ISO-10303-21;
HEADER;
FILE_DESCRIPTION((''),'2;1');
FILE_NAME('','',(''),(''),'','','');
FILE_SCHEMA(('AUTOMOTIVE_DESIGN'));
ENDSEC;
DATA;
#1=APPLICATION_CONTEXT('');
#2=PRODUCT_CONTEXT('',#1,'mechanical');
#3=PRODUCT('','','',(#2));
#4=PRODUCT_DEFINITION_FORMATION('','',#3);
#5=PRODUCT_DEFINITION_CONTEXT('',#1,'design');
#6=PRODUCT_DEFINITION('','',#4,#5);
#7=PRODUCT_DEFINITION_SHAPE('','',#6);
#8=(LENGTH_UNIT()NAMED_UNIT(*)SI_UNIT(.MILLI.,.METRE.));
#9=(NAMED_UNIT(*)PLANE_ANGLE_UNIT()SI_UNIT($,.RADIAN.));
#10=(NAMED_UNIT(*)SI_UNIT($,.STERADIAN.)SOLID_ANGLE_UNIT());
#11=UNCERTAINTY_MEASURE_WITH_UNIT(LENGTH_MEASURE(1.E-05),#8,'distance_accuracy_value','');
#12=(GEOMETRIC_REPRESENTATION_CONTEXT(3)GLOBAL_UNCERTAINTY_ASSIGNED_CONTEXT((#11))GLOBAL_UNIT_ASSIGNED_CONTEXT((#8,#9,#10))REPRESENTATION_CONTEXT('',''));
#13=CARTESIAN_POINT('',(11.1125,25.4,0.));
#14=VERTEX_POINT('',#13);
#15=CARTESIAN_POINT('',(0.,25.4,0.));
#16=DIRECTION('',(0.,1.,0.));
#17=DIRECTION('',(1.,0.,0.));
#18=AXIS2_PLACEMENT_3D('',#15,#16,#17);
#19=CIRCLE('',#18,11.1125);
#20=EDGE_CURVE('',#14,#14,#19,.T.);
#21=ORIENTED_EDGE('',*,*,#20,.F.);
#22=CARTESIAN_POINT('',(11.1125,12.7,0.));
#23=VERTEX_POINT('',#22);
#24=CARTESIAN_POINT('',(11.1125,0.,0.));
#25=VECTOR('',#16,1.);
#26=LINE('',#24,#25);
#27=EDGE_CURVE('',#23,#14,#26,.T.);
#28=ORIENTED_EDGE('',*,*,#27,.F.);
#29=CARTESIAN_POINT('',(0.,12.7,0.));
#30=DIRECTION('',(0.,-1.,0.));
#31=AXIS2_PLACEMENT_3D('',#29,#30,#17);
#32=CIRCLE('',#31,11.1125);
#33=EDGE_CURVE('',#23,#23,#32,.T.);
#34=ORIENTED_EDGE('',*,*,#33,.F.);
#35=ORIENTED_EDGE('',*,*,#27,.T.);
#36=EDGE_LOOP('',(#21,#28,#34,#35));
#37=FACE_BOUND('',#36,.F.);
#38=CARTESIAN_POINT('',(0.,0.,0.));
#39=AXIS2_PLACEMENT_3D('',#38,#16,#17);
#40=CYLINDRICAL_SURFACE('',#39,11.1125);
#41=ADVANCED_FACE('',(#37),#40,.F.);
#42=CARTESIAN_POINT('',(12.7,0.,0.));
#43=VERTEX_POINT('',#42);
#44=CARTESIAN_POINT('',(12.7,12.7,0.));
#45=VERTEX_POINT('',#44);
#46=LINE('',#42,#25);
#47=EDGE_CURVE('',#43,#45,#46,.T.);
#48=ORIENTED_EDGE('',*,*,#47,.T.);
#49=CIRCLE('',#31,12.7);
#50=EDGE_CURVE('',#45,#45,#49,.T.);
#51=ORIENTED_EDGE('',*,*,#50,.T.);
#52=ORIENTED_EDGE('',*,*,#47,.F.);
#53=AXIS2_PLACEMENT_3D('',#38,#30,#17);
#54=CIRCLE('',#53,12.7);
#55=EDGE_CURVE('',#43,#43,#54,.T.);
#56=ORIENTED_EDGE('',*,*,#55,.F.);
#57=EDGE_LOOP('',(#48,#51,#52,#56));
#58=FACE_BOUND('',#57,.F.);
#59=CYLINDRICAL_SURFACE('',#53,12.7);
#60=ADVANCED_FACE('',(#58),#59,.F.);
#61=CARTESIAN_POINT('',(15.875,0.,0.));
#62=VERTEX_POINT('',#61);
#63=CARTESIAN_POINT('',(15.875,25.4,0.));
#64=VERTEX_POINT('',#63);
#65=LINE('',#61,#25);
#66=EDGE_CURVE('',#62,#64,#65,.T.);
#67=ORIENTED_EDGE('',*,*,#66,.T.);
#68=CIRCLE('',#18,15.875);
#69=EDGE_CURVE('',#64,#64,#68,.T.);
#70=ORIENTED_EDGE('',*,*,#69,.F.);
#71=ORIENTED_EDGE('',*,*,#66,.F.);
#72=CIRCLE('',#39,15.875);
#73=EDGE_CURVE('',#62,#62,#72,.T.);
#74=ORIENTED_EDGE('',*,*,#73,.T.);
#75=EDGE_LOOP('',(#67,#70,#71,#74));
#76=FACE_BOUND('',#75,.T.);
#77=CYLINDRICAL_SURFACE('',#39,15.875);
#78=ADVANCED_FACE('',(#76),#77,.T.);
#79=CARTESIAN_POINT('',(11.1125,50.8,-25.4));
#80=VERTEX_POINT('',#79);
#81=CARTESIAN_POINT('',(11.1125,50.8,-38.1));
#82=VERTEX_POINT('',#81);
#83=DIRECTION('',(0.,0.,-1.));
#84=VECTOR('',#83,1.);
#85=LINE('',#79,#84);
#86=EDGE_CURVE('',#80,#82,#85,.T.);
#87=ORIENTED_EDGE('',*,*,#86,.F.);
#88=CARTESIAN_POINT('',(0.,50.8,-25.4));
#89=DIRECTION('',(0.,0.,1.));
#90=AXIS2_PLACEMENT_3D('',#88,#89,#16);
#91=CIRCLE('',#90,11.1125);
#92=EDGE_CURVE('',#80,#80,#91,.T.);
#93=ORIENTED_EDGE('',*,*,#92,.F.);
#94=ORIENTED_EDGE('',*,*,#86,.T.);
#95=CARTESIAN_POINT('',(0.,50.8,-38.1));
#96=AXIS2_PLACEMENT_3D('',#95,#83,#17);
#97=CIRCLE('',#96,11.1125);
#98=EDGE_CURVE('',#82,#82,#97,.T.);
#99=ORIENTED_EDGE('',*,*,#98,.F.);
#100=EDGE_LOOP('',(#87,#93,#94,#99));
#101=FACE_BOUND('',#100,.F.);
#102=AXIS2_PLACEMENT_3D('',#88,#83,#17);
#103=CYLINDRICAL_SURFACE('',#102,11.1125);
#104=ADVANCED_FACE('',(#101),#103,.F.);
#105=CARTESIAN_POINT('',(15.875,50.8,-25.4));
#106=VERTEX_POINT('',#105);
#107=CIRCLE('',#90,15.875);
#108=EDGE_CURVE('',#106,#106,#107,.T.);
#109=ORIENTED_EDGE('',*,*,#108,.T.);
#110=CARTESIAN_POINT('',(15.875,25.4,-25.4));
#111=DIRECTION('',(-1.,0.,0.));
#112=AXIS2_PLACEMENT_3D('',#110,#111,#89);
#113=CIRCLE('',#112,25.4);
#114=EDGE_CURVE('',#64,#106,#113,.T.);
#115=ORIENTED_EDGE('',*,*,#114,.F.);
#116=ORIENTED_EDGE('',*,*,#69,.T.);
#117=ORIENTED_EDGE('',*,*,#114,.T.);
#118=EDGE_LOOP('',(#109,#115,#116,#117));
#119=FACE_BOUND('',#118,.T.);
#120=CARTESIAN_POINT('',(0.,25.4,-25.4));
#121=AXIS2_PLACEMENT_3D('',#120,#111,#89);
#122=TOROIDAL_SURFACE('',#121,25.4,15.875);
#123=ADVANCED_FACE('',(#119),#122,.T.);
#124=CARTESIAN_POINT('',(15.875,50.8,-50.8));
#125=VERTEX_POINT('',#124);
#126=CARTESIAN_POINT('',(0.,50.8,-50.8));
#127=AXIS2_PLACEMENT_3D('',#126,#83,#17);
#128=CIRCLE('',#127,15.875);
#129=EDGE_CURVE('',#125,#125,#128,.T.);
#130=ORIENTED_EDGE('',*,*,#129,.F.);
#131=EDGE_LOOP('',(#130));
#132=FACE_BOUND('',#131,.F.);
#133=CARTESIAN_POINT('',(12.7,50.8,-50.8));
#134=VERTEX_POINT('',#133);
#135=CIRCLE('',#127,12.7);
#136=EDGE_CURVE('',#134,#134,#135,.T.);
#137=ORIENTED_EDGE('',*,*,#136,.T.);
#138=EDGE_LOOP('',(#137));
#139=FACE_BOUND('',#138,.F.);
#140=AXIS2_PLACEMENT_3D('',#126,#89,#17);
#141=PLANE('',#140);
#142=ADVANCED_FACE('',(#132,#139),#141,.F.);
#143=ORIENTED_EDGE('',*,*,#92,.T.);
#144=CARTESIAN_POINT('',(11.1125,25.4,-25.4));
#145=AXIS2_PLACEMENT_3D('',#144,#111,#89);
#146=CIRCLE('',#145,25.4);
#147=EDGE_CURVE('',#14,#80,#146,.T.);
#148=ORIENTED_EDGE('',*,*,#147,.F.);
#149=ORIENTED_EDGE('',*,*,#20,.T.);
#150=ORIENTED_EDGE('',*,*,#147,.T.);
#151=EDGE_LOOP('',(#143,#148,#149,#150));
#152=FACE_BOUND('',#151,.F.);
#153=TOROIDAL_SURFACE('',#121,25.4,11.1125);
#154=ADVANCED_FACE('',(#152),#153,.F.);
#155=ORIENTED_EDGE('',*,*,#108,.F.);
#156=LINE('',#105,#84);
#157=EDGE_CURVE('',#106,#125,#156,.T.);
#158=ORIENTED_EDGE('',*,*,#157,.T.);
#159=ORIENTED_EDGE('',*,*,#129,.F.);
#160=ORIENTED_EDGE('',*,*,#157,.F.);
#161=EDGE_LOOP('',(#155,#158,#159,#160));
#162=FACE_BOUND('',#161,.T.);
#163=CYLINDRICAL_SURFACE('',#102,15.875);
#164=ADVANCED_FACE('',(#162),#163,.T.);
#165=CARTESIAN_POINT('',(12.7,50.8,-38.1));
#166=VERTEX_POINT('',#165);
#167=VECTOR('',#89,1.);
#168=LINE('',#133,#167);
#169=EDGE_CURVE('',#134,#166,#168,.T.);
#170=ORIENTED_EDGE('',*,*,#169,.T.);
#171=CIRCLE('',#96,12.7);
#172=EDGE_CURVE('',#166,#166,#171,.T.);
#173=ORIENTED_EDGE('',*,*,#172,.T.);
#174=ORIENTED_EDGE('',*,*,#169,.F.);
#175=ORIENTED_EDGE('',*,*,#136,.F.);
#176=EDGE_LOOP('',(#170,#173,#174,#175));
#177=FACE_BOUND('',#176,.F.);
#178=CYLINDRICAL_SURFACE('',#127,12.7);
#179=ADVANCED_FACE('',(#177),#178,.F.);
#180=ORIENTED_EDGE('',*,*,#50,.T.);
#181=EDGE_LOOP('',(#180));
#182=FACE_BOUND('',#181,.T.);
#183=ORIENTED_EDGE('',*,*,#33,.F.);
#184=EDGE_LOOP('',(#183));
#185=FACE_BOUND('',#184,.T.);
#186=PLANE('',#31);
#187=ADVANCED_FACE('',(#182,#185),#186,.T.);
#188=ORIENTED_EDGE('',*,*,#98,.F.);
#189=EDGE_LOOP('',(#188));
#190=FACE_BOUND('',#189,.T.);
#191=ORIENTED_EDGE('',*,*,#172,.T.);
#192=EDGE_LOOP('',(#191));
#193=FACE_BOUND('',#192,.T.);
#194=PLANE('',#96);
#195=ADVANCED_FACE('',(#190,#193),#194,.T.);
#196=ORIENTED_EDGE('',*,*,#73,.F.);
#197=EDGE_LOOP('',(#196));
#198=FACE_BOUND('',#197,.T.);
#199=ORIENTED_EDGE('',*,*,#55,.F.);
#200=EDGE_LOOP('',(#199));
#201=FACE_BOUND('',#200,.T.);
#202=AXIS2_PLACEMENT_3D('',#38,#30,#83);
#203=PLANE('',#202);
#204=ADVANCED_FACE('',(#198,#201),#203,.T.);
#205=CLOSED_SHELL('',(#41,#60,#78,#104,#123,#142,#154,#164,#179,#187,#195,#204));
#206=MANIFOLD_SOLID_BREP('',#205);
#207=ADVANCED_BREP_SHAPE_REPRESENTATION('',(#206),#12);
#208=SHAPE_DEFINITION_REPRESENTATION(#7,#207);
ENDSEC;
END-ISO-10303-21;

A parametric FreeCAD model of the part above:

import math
import FreeCAD as App
import Part
import Sketcher
from FreeCAD import Vector
Q = App.Units.Quantity

doc = App.newDocument("Part")
body = doc.addObject("PartDesign::Body", "Body")

# Sketch on XZ plane
sketch1 = body.newObject("Sketcher::SketchObject", "Sketch")
sketch1.AttachmentSupport = (doc.getObject("XZ_Plane"), [""])
sketch1.MapMode = "FlatFace"
sketch1.addGeometry(Part.Circle(Vector(0, 0, 0), Vector(0, 0, 1), 16), False)
sketch1.addGeometry(Part.Circle(Vector(0, 0, 0), Vector(0, 0, 1), 11), False)
sketch1.addConstraint(Sketcher.Constraint("Coincident", 0, 3, -1, 1))
sketch1.addConstraint(Sketcher.Constraint("Coincident", 1, 3, -1, 1))
sketch1.addConstraint(Sketcher.Constraint("Diameter", 0, Q("1.25 in")))
sketch1.addConstraint(Sketcher.Constraint("Diameter", 1, Q("0.875 in")))

# Sketch on YZ plane
sketch2 = body.newObject("Sketcher::SketchObject", "Sketch001")
sketch2.AttachmentSupport = (doc.getObject("YZ_Plane"), [""])
sketch2.MapMode = "FlatFace"
sketch2.addGeometry(Part.LineSegment(Vector(0, 0, 0), Vector(25, 0, 0)), False)
sketch2.addGeometry(Part.ArcOfCircle(Part.Circle(Vector(25, -25, 0), Vector(0, 0, 1), 25), math.radians(0), math.radians(90)), False)
sketch2.addGeometry(Part.LineSegment(Vector(51, -25, 0), Vector(51, -51, 0)), False)
sketch2.addConstraint(Sketcher.Constraint("Tangent", 0, 2, 1, 2))
sketch2.addConstraint(Sketcher.Constraint("Tangent", 1, 1, 2, 1))
sketch2.addConstraint(Sketcher.Constraint("Horizontal", 0))
sketch2.addConstraint(Sketcher.Constraint("Vertical", 2))
sketch2.addConstraint(Sketcher.Constraint("Coincident", 0, 1, -1, 1))
sketch2.addConstraint(Sketcher.Constraint("Equal", 0, 2))
sketch2.addConstraint(Sketcher.Constraint("Radius", 1, Q("1 in")))
sketch2.addConstraint(Sketcher.Constraint("DistanceX", 0, 1, 0, 2, Q("1 in")))
doc.recompute()

additivepipe = body.newObject("PartDesign::AdditivePipe", "AdditivePipe")
additivepipe.Profile = sketch1
additivepipe.Spine = (sketch2, ["Edge1", "Edge2", "Edge3"])

# Sketch on XZ plane
sketch3 = body.newObject("Sketcher::SketchObject", "Sketch002")
sketch3.AttachmentSupport = (doc.getObject("XZ_Plane"), [""])
sketch3.MapMode = "FlatFace"
sketch3.addGeometry(Part.Circle(Vector(0, 0, 0), Vector(0, 0, 1), 13), False)
sketch3.addGeometry(Part.Circle(Vector(0, 0, 0), Vector(0, 0, 1), 11), False)
sketch3.addConstraint(Sketcher.Constraint("Coincident", 0, 3, -1, 1))
sketch3.addConstraint(Sketcher.Constraint("Coincident", 1, 3, -1, 1))
sketch3.addConstraint(Sketcher.Constraint("Diameter", 0, Q("1 in")))
sketch3.addConstraint(Sketcher.Constraint("Diameter", 1, Q("0.875 in")))
pocket1 = body.newObject("PartDesign::Pocket", "Pocket")
pocket1.Profile = sketch3
pocket1.Length = Q("0.5 in")

# Sketch on XY plane
sketch4 = body.newObject("Sketcher::SketchObject", "Sketch003")
sketch4.AttachmentSupport = (doc.getObject("XY_Plane"), [""])
sketch4.MapMode = "FlatFace"
sketch4.AttachmentOffset = App.Placement(Vector(0, 0, -2 * 25.4), App.Rotation())
sketch4.addGeometry(Part.Circle(Vector(0, 51, 0), Vector(0, 0, 1), 13), False)
sketch4.addConstraint(Sketcher.Constraint("PointOnObject", 0, 3, -2))
sketch4.addConstraint(Sketcher.Constraint("Diameter", 0, Q("1 in")))
sketch4.addConstraint(Sketcher.Constraint("DistanceY", -1, 1, 0, 3, Q("2 in")))
pocket2 = body.newObject("PartDesign::Pocket", "Pocket001")
pocket2.Profile = sketch4
pocket2.Length = Q("0.5 in")
pocket2.Reversed = True

doc.recompute()
